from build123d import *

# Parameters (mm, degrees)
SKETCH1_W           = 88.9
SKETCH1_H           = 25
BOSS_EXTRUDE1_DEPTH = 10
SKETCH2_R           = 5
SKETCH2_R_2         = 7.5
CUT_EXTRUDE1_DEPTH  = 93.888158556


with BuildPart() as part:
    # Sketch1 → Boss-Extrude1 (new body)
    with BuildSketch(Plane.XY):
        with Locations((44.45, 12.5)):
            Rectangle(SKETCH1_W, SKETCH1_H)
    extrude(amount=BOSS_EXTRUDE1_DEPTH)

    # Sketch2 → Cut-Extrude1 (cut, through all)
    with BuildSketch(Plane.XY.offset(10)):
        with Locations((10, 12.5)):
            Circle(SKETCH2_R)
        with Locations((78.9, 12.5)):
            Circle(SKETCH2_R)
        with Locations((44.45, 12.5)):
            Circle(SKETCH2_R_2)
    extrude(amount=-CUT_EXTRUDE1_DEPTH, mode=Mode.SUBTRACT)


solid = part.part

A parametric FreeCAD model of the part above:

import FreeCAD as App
import Part
import Sketcher
Q = App.Units.Quantity


def add_polygon(sketch, points):
    """Adds a closed chain of lines whose ends are joined by coincident constraints."""
    first, n = sketch.GeometryCount, len(points)
    for a, b in zip(points, points[1:] + points[:1]):
        sketch.addGeometry(Part.LineSegment(App.Vector(*a, 0), App.Vector(*b, 0)), False)
    for i in range(n):
        sketch.addConstraint(Sketcher.Constraint("Coincident", first + i, 2, first + (i + 1) % n, 1))

doc = App.newDocument("Part")
body = doc.addObject("PartDesign::Body", "Body")

sketch1 = body.newObject("Sketcher::SketchObject", "Sketch")
sketch1.AttachmentSupport = (doc.getObject("XY_Plane"), [""])
sketch1.MapMode = "FlatFace"
add_polygon(sketch1, [(0, 25), (0, 0), (89, 0), (89, 25)])
sketch1.addConstraint([
    Sketcher.Constraint("Vertical", 0),
    Sketcher.Constraint("Horizontal", 1),
    Sketcher.Constraint("Vertical", 2),
    Sketcher.Constraint("Horizontal", 3),
    Sketcher.Constraint("Coincident", 0, 2, -1, 1),
    Sketcher.Constraint("DistanceY", 0, 2, 0, 1, Q("25 mm")),
    Sketcher.Constraint("DistanceX", 1, 1, 1, 2, Q("88.9 mm")),
])
pad1 = body.newObject("PartDesign::Pad", "Pad")
pad1.Profile = sketch1
pad1.Length = 10

sketch2 = body.newObject("Sketcher::SketchObject", "Sketch001")
sketch2.AttachmentSupport = (doc.getObject("XY_Plane"), [""])
sketch2.MapMode = "FlatFace"
sketch2.AttachmentOffset = App.Placement(App.Vector(0, 0, 10), App.Rotation())
sketch2.addGeometry([
    Part.Circle(App.Vector(10, 12, 0), App.Vector(0, 0, 1), 5),
    Part.Circle(App.Vector(79, 12, 0), App.Vector(0, 0, 1), 5),
    Part.Circle(App.Vector(44, 12, 0), App.Vector(0, 0, 1), 8),
], False)
sketch2.addConstraint([
    Sketcher.Constraint("Equal", 0, 1),
    Sketcher.Constraint("Horizontal", 0, 3, 1, 3),
    Sketcher.Constraint("Horizontal", 1, 3, 2, 3),
    Sketcher.Constraint("Diameter", 0, Q("10 mm")),
    Sketcher.Constraint("Diameter", 2, Q("15 mm")),
    Sketcher.Constraint("DistanceX", -1, 1, 0, 3, Q("10 mm")),
    Sketcher.Constraint("DistanceY", -1, 1, 0, 3, Q("12.5 mm")),
    Sketcher.Constraint("DistanceX", -1, 1, 1, 3, Q("78.9 mm")),
    Sketcher.Constraint("DistanceX", -1, 1, 2, 3, Q("44.45 mm")),
])
pocket1 = body.newObject("PartDesign::Pocket", "Pocket")
pocket1.Profile = sketch2
pocket1.Type = "ThroughAll"

doc.recompute()
